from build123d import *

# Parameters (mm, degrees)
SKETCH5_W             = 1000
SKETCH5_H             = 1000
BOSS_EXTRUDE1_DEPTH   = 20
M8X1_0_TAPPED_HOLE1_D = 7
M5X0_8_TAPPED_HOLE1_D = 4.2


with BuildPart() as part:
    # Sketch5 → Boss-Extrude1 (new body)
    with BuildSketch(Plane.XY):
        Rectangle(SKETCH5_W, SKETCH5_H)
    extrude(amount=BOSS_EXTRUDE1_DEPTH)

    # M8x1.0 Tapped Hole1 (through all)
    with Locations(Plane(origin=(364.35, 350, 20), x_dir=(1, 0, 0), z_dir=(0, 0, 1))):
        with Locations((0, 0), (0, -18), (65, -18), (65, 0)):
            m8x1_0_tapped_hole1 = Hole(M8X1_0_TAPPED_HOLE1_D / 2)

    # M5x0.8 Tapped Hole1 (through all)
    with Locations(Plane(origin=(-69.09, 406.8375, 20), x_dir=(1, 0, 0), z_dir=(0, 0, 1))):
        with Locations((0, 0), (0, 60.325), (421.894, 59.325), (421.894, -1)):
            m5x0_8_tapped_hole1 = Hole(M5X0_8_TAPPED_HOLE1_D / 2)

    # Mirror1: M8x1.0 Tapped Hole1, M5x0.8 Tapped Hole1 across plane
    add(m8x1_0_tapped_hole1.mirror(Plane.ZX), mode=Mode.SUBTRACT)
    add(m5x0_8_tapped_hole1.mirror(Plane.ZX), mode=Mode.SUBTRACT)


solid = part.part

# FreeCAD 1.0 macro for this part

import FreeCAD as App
import Part
import Sketcher

doc = App.newDocument("Part")
body = doc.addObject("PartDesign::Body", "Body")

# Sketch on XY plane
sketch1 = body.newObject("Sketcher::SketchObject", "Sketch")
sketch1.AttachmentSupport = (doc.getObject("XY_Plane"), [""])
sketch1.MapMode = "FlatFace"
sketch1.addGeometry(Part.LineSegment(App.Vector(-500, 500, 0), App.Vector(-500, -500, 0)), False)
sketch1.addGeometry(Part.LineSegment(App.Vector(-500, -500, 0), App.Vector(500, -500, 0)), False)
sketch1.addGeometry(Part.LineSegment(App.Vector(500, -500, 0), App.Vector(500, 500, 0)), False)
sketch1.addGeometry(Part.LineSegment(App.Vector(500, 500, 0), App.Vector(-500, 500, 0)), False)
sketch1.addConstraint(Sketcher.Constraint("Coincident", 0, 2, 1, 1))
sketch1.addConstraint(Sketcher.Constraint("Coincident", 1, 2, 2, 1))
sketch1.addConstraint(Sketcher.Constraint("Coincident", 2, 2, 3, 1))
sketch1.addConstraint(Sketcher.Constraint("Coincident", 3, 2, 0, 1))
sketch1.addConstraint(Sketcher.Constraint("Vertical", 0))
sketch1.addConstraint(Sketcher.Constraint("Horizontal", 1))
sketch1.addConstraint(Sketcher.Constraint("Vertical", 2))
sketch1.addConstraint(Sketcher.Constraint("Horizontal", 3))
sketch1.addConstraint(Sketcher.Constraint("Symmetric", 0, 2, 2, 2, -1, 1))
sketch1.addConstraint(Sketcher.Constraint("Equal", 3, 0))
sketch1.addConstraint(Sketcher.Constraint("DistanceX", 1, 1, 1, 2, 1000.0))
pad1 = body.newObject("PartDesign::Pad", "Pad")
pad1.Profile = sketch1
pad1.Length = 20

# Sketch on XY plane
sketch2 = body.newObject("Sketcher::SketchObject", "Sketch001")
sketch2.AttachmentSupport = (doc.getObject("XY_Plane"), [""])
sketch2.MapMode = "FlatFace"
sketch2.AttachmentOffset = App.Placement(App.Vector(0, 0, 20), App.Rotation())
sketch2.addGeometry(Part.Circle(App.Vector(364.4, 350, 0), App.Vector(0, 0, 1), 3.5), False)
sketch2.addGeometry(Part.Circle(App.Vector(364.4, 332, 0), App.Vector(0, 0, 1), 3.5), False)
sketch2.addGeometry(Part.Circle(App.Vector(429.4, 332, 0), App.Vector(0, 0, 1), 3.5), False)
sketch2.addGeometry(Part.Circle(App.Vector(429.4, 350, 0), App.Vector(0, 0, 1), 3.5), False)
sketch2.addConstraint(Sketcher.Constraint("Equal", 0, 1))
sketch2.addConstraint(Sketcher.Constraint("Equal", 1, 2))
sketch2.addConstraint(Sketcher.Constraint("Equal", 2, 3))
sketch2.addConstraint(Sketcher.Constraint("Horizontal", 1, 3, 2, 3))
sketch2.addConstraint(Sketcher.Constraint("Horizontal", 0, 3, 3, 3))
sketch2.addConstraint(Sketcher.Constraint("Vertical", 0, 3, 1, 3))
sketch2.addConstraint(Sketcher.Constraint("Vertical", 2, 3, 3, 3))
sketch2.addConstraint(Sketcher.Constraint("Diameter", 0, 7.0))
sketch2.addConstraint(Sketcher.Constraint("DistanceY", -1, 1, 0, 3, 350.0))
sketch2.addConstraint(Sketcher.Constraint("DistanceY", -1, 1, 1, 3, 332.0))
sketch2.addConstraint(Sketcher.Constraint("DistanceX", 1, 3, 2, 3, 65.0))
sketch2.addConstraint(Sketcher.Constraint("DistanceX", -1, 1, 0, 3, 364.35))
doc.recompute()
hole = body.newObject("PartDesign::Hole", "Hole")
hole.Profile = sketch2
hole.ThreadType = "None"
hole.Diameter = 7
hole.DepthType = "ThroughAll"

# Sketch on XY plane
sketch3 = body.newObject("Sketcher::SketchObject", "Sketch002")
sketch3.AttachmentSupport = (doc.getObject("XY_Plane"), [""])
sketch3.MapMode = "FlatFace"
sketch3.AttachmentOffset = App.Placement(App.Vector(0, 0, 20), App.Rotation())
sketch3.addGeometry(Part.Circle(App.Vector(-69.1, 406.8, 0), App.Vector(0, 0, 1), 2.1), False)
sketch3.addGeometry(Part.Circle(App.Vector(-69.1, 467.2, 0), App.Vector(0, 0, 1), 2.1), False)
sketch3.addGeometry(Part.Circle(App.Vector(352.8, 466.2, 0), App.Vector(0, 0, 1), 2.1), False)
sketch3.addGeometry(Part.Circle(App.Vector(352.8, 405.8, 0), App.Vector(0, 0, 1), 2.1), False)
sketch3.addConstraint(Sketcher.Constraint("Equal", 0, 1))
sketch3.addConstraint(Sketcher.Constraint("Equal", 1, 2))
sketch3.addConstraint(Sketcher.Constraint("Equal", 2, 3))
sketch3.addConstraint(Sketcher.Constraint("Vertical", 0, 3, 1, 3))
sketch3.addConstraint(Sketcher.Constraint("Vertical", 2, 3, 3, 3))
sketch3.addConstraint(Sketcher.Constraint("Diameter", 0, 4.2))
sketch3.addConstraint(Sketcher.Constraint("DistanceY", 2, 3, 1, 3, 1.0))
sketch3.addConstraint(Sketcher.Constraint("DistanceY", 3, 3, 0, 3, 1.0))
sketch3.addConstraint(Sketcher.Constraint("DistanceX", 0, 3, -1, 1, 69.09))
sketch3.addConstraint(Sketcher.Constraint("DistanceX", -1, 1, 2, 3, 352.804))
sketch3.addConstraint(Sketcher.Constraint("DistanceY", 0, 3, 1, 3, 60.325))
sketch3.addConstraint(Sketcher.Constraint("DistanceY", -1, 1, 0, 3, 406.8375))
doc.recompute()
hole2 = body.newObject("PartDesign::Hole", "Hole001")
hole2.Profile = sketch3
hole2.ThreadType = "None"
hole2.Diameter = 4.2
hole2.DepthType = "ThroughAll"
doc.recompute()

mirrored = body.newObject("PartDesign::Mirrored", "Mirrored")
mirrored.Originals = [hole, hole2]
mirrored.MirrorPlane = (doc.getObject("XZ_Plane"), [""])
body.Tip = mirrored

doc.recompute()
